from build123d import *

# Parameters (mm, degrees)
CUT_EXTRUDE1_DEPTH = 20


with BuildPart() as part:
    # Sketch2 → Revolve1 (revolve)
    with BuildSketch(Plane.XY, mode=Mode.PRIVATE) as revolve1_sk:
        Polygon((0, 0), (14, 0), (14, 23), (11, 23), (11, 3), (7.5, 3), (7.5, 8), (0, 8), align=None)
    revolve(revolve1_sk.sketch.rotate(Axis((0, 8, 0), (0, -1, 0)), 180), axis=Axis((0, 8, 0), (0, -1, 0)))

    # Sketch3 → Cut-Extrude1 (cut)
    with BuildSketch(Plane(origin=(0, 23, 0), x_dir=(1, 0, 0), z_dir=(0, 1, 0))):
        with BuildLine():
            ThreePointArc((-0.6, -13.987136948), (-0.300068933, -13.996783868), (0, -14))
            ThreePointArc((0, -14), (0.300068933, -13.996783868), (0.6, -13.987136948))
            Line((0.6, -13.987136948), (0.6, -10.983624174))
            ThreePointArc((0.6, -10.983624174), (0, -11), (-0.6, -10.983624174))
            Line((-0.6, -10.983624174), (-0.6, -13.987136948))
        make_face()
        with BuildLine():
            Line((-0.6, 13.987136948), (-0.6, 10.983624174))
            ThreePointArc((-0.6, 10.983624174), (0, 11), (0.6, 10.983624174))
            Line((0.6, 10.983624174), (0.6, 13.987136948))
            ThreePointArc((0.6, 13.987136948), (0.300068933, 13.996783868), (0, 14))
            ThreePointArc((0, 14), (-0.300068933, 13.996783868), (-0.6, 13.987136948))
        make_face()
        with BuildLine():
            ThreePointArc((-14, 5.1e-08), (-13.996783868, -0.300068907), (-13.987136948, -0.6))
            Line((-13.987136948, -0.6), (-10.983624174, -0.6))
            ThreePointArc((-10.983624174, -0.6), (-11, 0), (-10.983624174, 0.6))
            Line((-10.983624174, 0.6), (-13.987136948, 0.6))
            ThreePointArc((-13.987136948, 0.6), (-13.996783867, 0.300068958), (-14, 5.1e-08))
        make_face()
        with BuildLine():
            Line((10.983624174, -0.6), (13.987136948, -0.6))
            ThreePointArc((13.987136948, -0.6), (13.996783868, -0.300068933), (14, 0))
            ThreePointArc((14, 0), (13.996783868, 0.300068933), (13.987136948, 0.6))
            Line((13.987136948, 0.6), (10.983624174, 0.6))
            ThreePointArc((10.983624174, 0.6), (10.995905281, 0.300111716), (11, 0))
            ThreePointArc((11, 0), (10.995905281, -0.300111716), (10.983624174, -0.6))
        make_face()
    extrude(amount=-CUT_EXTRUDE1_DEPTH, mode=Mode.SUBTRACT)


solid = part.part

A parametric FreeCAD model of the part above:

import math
import FreeCAD as App
import Part
import Sketcher
from FreeCAD import Vector


def add_polygon(sketch, points):
    """Adds a closed chain of lines whose ends are joined by coincident constraints."""
    first, n = sketch.GeometryCount, len(points)
    for a, b in zip(points, points[1:] + points[:1]):
        sketch.addGeometry(Part.LineSegment(App.Vector(*a, 0), App.Vector(*b, 0)), False)
    for i in range(n):
        sketch.addConstraint(Sketcher.Constraint("Coincident", first + i, 2, first + (i + 1) % n, 1))

doc = App.newDocument("Part")
body = doc.addObject("PartDesign::Body", "Body")

sketch1 = doc.addObject("Sketcher::SketchObject", "Sketch")
body.addObject(sketch1)
sketch1.AttachmentSupport = (doc.XY_Plane, [""])
sketch1.MapMode = "FlatFace"
add_polygon(sketch1, [(0, 0), (14, 0), (14, 23), (11, 23), (11, 3), (7.5, 3), (7.5, 8), (0, 8)])
sketch1.addConstraint(Sketcher.Constraint("Horizontal", 0))
sketch1.addConstraint(Sketcher.Constraint("Vertical", 1))
sketch1.addConstraint(Sketcher.Constraint("Horizontal", 2))
sketch1.addConstraint(Sketcher.Constraint("Vertical", 3))
sketch1.addConstraint(Sketcher.Constraint("Horizontal", 4))
sketch1.addConstraint(Sketcher.Constraint("Vertical", 5))
sketch1.addConstraint(Sketcher.Constraint("Horizontal", 6))
sketch1.addConstraint(Sketcher.Constraint("Vertical", 7))
sketch1.addConstraint(Sketcher.Constraint("Coincident", 7, 2, -1, 1))
sketch1.addConstraint(Sketcher.Constraint("DistanceX", 0, 1, 0, 2, 14.0))
sketch1.addConstraint(Sketcher.Constraint("DistanceX", 2, 2, 2, 1, 3.0))
sketch1.addConstraint(Sketcher.Constraint("DistanceY", 1, 1, 1, 2, 23.0))
sketch1.addConstraint(Sketcher.Constraint("DistanceY", 3, 2, 3, 1, 20.0))
sketch1.addConstraint(Sketcher.Constraint("DistanceY", 5, 1, 5, 2, 5.0))
sketch1.addConstraint(Sketcher.Constraint("DistanceX", 4, 2, 4, 1, 3.5))
revolution = doc.addObject("PartDesign::Revolution", "Revolution")
body.addObject(revolution)
revolution.Profile = sketch1
revolution.ReferenceAxis = (sketch1, ["V_Axis"])
revolution.Angle = 360

sketch2 = doc.addObject("Sketcher::SketchObject", "Sketch001")
body.addObject(sketch2)
sketch2.AttachmentSupport = (doc.XZ_Plane, [""])
sketch2.MapMode = "FlatFace"
sketch2.AttachmentOffset = App.Placement(Vector(0, 0, -23), App.Rotation())
sketch2.addGeometry(Part.ArcOfCircle(Part.Circle(Vector(0, 0.000002, 0), Vector(0, 0, 1), 13.999998), math.radians(90), math.radians(92.456286)), False)
sketch2.addGeometry(Part.ArcOfCircle(Part.Circle(Vector(0, 0.000002, 0), Vector(0, 0, 1), 13.999998), math.radians(87.543714), math.radians(90)), False)
sketch2.addGeometry(Part.LineSegment(Vector(0.6, 13.987137, 0), Vector(0.6, 10.983624, 0)), False)
sketch2.addGeometry(Part.ArcOfCircle(Part.Circle(Vector(0, 0, 0), Vector(0, 0, 1), 11), math.radians(86.873224), math.radians(93.126776)), False)
sketch2.addGeometry(Part.LineSegment(Vector(-0.6, 10.983624, 0), Vector(-0.6, 13.987137, 0)), False)
sketch2.addGeometry(Part.LineSegment(Vector(-0.6, -13.987137, 0), Vector(-0.6, -10.983624, 0)), False)
sketch2.addGeometry(Part.ArcOfCircle(Part.Circle(Vector(0, 0, 0), Vector(0, 0, 1), 11), math.radians(-93.126776), math.radians(-86.873224)), False)
sketch2.addGeometry(Part.LineSegment(Vector(0.6, -10.983624, 0), Vector(0.6, -13.987137, 0)), False)
sketch2.addGeometry(Part.ArcOfCircle(Part.Circle(Vector(0, -0.000002, 0), Vector(0, 0, 1), 13.999998), math.radians(-90), math.radians(-87.543714)), False)
sketch2.addGeometry(Part.ArcOfCircle(Part.Circle(Vector(0, -0.000002, 0), Vector(0, 0, 1), 13.999998), math.radians(-92.456286), math.radians(-90)), False)
sketch2.addGeometry(Part.ArcOfCircle(Part.Circle(Vector(0.000001, 0, 0), Vector(0, 0, 1), 14.000001), math.radians(177.543714), math.radians(180)), False)
sketch2.addGeometry(Part.LineSegment(Vector(-13.987137, 0.6, 0), Vector(-10.983624, 0.6, 0)), False)
sketch2.addGeometry(Part.ArcOfCircle(Part.Circle(Vector(0, 0, 0), Vector(0, 0, 1), 11), math.radians(176.873224), math.radians(183.126776)), False)
sketch2.addGeometry(Part.LineSegment(Vector(-10.983624, -0.6, 0), Vector(-13.987137, -0.6, 0)), False)
sketch2.addGeometry(Part.ArcOfCircle(Part.Circle(Vector(0, 0, 0), Vector(0, 0, 1), 14), math.radians(-180), math.radians(-177.543714)), False)
sketch2.addGeometry(Part.LineSegment(Vector(10.983624, 0.6, 0), Vector(13.987137, 0.6, 0)), False)
sketch2.addGeometry(Part.ArcOfCircle(Part.Circle(Vector(0.000002, 0, 0), Vector(0, 0, 1), 13.999998), math.radians(0), math.radians(2.456286)), False)
sketch2.addGeometry(Part.ArcOfCircle(Part.Circle(Vector(0.000002, 0, 0), Vector(0, 0, 1), 13.999998), math.radians(-2.456286), math.radians(0)), False)
sketch2.addGeometry(Part.LineSegment(Vector(13.987137, -0.6, 0), Vector(10.983624, -0.6, 0)), False)
sketch2.addGeometry(Part.ArcOfCircle(Part.Circle(Vector(-0.000001, 0, 0), Vector(0, 0, 1), 11.000001), math.radians(-3.126776), math.radians(0)), False)
sketch2.addGeometry(Part.ArcOfCircle(Part.Circle(Vector(-0.000001, 0, 0), Vector(0, 0, 1), 11.000001), math.radians(0), math.radians(3.126776)), False)
sketch2.addConstraint(Sketcher.Constraint("Tangent", 0, 1, 1, 2))
sketch2.addConstraint(Sketcher.Constraint("Coincident", 1, 1, 2, 1))
sketch2.addConstraint(Sketcher.Constraint("Coincident", 2, 2, 3, 1))
sketch2.addConstraint(Sketcher.Constraint("Coincident", 3, 2, 4, 1))
sketch2.addConstraint(Sketcher.Constraint("Coincident", 4, 2, 0, 2))
sketch2.addConstraint(Sketcher.Constraint("Coincident", 5, 2, 6, 1))
sketch2.addConstraint(Sketcher.Constraint("Coincident", 6, 2, 7, 1))
sketch2.addConstraint(Sketcher.Constraint("Coincident", 7, 2, 8, 2))
sketch2.addConstraint(Sketcher.Constraint("Tangent", 8, 1, 9, 2))
sketch2.addConstraint(Sketcher.Constraint("Coincident", 9, 1, 5, 1))
sketch2.addConstraint(Sketcher.Constraint("Coincident", 10, 1, 11, 1))
sketch2.addConstraint(Sketcher.Constraint("Coincident", 11, 2, 12, 1))
sketch2.addConstraint(Sketcher.Constraint("Coincident", 12, 2, 13, 1))
sketch2.addConstraint(Sketcher.Constraint("Coincident", 13, 2, 14, 2))
sketch2.addConstraint(Sketcher.Constraint("Tangent", 14, 1, 10, 2))
sketch2.addConstraint(Sketcher.Constraint("Coincident", 15, 2, 16, 2))
sketch2.addConstraint(Sketcher.Constraint("Tangent", 16, 1, 17, 2))
sketch2.addConstraint(Sketcher.Constraint("Coincident", 17, 1, 18, 1))
sketch2.addConstraint(Sketcher.Constraint("Coincident", 18, 2, 19, 1))
sketch2.addConstraint(Sketcher.Constraint("Tangent", 19, 2, 20, 1))
sketch2.addConstraint(Sketcher.Constraint("Coincident", 20, 2, 15, 1))
sketch2.addConstraint(Sketcher.Constraint("Vertical", 2))
sketch2.addConstraint(Sketcher.Constraint("Vertical", 4))
sketch2.addConstraint(Sketcher.Constraint("Vertical", 5))
sketch2.addConstraint(Sketcher.Constraint("Vertical", 7))
sketch2.addConstraint(Sketcher.Constraint("Horizontal", 11))
sketch2.addConstraint(Sketcher.Constraint("Horizontal", 13))
sketch2.addConstraint(Sketcher.Constraint("Horizontal", 15))
sketch2.addConstraint(Sketcher.Constraint("Horizontal", 18))
sketch2.addConstraint(Sketcher.Constraint("Coincident", 0, 3, -1, 1))
sketch2.addConstraint(Sketcher.Constraint("Coincident", 3, 3, -1, 1))
sketch2.addConstraint(Sketcher.Constraint("Coincident", 6, 3, -1, 1))
sketch2.addConstraint(Sketcher.Constraint("Coincident", 8, 3, -1, 1))
sketch2.addConstraint(Sketcher.Constraint("Coincident", 10, 3, -1, 1))
sketch2.addConstraint(Sketcher.Constraint("Coincident", 12, 3, -1, 1))
sketch2.addConstraint(Sketcher.Constraint("Coincident", 16, 3, -1, 1))
sketch2.addConstraint(Sketcher.Constraint("Coincident", 19, 3, -1, 1))
sketch2.addConstraint(Sketcher.Constraint("Equal", 0, 1))
sketch2.addConstraint(Sketcher.Constraint("Equal", 3, 6))
sketch2.addConstraint(Sketcher.Constraint("Equal", 1, 8))
sketch2.addConstraint(Sketcher.Constraint("Equal", 8, 9))
sketch2.addConstraint(Sketcher.Constraint("Equal", 6, 12))
sketch2.addConstraint(Sketcher.Constraint("Equal", 10, 14))
sketch2.addConstraint(Sketcher.Constraint("Equal", 9, 16))
sketch2.addConstraint(Sketcher.Constraint("Equal", 16, 17))
sketch2.addConstraint(Sketcher.Constraint("Equal", 12, 19))
sketch2.addConstraint(Sketcher.Constraint("Equal", 19, 20))
sketch2.addConstraint(Sketcher.Constraint("Symmetric", 13, 2, 15, 2, -1, 1))
sketch2.addConstraint(Sketcher.Constraint("PointOnObject", 0, 1, -2))
sketch2.addConstraint(Sketcher.Constraint("PointOnObject", 8, 1, -2))
sketch2.addConstraint(Sketcher.Constraint("PointOnObject", 14, 1, -1))
sketch2.addConstraint(Sketcher.Constraint("PointOnObject", 16, 1, -1))
sketch2.addConstraint(Sketcher.Constraint("PointOnObject", 19, 2, -1))
sketch2.addConstraint(Sketcher.Constraint("Horizontal", 2, 2, 3, 2))
sketch2.addConstraint(Sketcher.Constraint("Horizontal", 5, 2, 6, 2))
sketch2.addConstraint(Sketcher.Constraint("Horizontal", 11, 2, 15, 2))
sketch2.addConstraint(Sketcher.Constraint("Horizontal", 13, 2, 17, 1))
sketch2.addConstraint(Sketcher.Constraint("Vertical", 4, 2, 5, 2))
sketch2.addConstraint(Sketcher.Constraint("Equal", 18, 2))
sketch2.addConstraint(Sketcher.Constraint("Radius", 0, 13.999998))
sketch2.addConstraint(Sketcher.Constraint("Radius", 3, 11.0))
sketch2.addConstraint(Sketcher.Constraint("DistanceX", -1, 1, 1, 1, 0.6))
pocket1 = doc.addObject("PartDesign::Pocket", "Pocket")
body.addObject(pocket1)
pocket1.Profile = sketch2
pocket1.Length = 20
pocket1.Reversed = True

doc.recompute()
